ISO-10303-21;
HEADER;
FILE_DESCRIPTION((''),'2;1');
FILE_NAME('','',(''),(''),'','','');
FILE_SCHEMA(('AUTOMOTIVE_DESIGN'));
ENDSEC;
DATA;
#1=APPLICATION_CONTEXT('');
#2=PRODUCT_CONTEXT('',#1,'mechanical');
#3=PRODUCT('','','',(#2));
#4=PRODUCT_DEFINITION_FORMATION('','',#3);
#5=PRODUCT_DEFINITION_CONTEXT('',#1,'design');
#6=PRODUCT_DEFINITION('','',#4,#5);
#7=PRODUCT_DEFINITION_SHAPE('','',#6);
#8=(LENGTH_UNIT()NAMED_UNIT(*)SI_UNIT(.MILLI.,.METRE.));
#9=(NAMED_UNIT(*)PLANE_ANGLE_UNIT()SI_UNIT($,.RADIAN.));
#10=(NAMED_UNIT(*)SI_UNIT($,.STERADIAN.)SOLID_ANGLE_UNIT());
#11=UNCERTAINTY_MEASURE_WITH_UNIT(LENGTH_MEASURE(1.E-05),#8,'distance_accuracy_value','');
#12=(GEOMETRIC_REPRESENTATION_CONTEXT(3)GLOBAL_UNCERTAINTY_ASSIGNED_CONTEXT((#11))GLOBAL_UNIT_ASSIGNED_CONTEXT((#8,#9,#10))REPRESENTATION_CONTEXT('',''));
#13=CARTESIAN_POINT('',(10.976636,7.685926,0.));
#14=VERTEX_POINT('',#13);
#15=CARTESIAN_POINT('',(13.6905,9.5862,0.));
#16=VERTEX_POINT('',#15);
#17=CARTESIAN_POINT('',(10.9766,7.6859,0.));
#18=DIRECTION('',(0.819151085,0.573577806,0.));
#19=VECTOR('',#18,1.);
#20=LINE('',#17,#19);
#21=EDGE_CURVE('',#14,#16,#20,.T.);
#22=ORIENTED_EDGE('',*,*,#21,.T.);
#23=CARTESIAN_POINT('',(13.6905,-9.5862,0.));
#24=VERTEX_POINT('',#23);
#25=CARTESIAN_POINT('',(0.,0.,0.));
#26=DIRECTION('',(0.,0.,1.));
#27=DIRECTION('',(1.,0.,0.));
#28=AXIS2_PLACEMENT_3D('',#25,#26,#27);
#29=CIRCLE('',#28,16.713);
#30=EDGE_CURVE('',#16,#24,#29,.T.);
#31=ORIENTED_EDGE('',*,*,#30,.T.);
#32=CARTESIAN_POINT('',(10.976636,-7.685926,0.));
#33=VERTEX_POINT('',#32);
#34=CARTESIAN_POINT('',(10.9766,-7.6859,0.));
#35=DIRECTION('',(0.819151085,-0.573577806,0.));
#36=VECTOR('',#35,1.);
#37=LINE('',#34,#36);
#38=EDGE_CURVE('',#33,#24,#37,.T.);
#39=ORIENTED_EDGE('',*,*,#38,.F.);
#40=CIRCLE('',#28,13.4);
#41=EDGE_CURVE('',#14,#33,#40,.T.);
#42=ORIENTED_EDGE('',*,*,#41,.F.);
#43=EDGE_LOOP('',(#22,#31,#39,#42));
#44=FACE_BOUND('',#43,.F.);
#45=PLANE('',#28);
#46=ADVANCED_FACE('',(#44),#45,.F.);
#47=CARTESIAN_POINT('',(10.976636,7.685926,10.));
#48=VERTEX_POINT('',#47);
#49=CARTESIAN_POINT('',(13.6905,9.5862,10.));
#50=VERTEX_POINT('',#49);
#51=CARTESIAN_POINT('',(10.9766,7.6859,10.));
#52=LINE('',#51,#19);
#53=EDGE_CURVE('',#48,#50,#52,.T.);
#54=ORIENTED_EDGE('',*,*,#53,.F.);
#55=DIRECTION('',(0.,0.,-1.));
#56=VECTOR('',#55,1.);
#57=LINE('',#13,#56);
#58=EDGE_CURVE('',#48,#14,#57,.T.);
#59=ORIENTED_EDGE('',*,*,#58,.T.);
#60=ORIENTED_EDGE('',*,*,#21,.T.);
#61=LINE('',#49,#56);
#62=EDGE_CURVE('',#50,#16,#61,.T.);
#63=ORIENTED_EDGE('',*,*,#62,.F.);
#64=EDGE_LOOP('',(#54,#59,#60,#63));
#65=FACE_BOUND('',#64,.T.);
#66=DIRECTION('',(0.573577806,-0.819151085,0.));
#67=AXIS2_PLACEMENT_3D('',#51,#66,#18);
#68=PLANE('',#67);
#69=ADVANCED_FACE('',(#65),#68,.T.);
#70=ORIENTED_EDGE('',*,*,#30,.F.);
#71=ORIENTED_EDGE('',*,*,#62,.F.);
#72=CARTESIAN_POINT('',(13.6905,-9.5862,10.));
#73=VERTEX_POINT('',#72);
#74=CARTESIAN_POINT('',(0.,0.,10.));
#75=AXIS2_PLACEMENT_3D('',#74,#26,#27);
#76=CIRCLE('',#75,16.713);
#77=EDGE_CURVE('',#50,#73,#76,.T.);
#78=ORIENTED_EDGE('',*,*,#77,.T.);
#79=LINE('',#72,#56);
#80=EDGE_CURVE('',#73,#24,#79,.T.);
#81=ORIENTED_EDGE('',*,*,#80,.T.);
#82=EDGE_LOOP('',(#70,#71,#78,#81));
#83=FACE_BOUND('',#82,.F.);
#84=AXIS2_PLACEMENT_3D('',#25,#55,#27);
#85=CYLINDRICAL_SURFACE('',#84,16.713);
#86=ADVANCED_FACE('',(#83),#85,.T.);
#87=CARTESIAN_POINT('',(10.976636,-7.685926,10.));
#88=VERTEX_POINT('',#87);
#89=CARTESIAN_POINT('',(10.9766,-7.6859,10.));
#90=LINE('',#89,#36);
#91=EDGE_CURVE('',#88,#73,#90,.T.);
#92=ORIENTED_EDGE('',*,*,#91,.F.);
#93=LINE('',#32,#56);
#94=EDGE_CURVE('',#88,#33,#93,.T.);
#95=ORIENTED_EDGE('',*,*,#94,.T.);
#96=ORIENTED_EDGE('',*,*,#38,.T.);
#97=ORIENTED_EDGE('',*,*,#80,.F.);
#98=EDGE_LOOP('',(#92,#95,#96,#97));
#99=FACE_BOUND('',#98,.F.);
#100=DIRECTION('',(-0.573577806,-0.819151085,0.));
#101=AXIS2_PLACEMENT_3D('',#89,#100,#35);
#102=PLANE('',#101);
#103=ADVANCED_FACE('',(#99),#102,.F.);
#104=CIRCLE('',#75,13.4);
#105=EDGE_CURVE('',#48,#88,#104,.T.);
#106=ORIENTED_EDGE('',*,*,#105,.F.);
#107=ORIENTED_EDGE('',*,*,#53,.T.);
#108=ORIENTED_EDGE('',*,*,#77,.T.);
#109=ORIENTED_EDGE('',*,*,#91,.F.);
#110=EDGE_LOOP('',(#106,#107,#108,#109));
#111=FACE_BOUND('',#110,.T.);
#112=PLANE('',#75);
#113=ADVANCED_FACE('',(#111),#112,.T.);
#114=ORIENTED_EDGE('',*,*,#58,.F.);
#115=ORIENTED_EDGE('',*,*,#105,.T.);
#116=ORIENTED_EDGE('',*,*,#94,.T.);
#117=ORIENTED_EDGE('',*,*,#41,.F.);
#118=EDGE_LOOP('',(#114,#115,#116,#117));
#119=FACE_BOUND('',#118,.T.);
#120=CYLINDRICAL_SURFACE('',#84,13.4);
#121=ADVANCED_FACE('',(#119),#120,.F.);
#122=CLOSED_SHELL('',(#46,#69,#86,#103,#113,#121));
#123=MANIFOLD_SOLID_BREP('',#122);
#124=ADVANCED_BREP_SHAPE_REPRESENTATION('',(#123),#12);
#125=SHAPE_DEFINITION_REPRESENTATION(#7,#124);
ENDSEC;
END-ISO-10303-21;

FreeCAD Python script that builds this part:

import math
import FreeCAD as App
import Part
import Sketcher
from FreeCAD import Vector
Q = App.Units.Quantity

doc = App.newDocument("Part")
body = doc.addObject("PartDesign::Body", "Body")

sketch1 = body.newObject("Sketcher::SketchObject", "Sketch")
sketch1.AttachmentSupport = (doc.getObject("XY_Plane"), [""])
sketch1.MapMode = "FlatFace"
sketch1.addGeometry(Part.Circle(Vector(0, 0, 0), Vector(0, 0, 1), 17), False)
sketch1.addGeometry(Part.Circle(Vector(0, 0, 0), Vector(0, 0, 1), 13), False)
sketch1.addConstraint(Sketcher.Constraint("Coincident", 0, 3, -1, 1))
sketch1.addConstraint(Sketcher.Constraint("Coincident", 1, 3, -1, 1))
sketch1.addConstraint(Sketcher.Constraint("Diameter", 1, Q("26.8 mm")))
sketch1.addConstraint(Sketcher.Constraint("Diameter", 0, Q("33.426 mm")))
pad1 = body.newObject("PartDesign::Pad", "Pad")
pad1.Profile = sketch1
pad1.Length = 10

sketch2 = body.newObject("Sketcher::SketchObject", "Sketch001")
sketch2.AttachmentSupport = (doc.getObject("XY_Plane"), [""])
sketch2.MapMode = "FlatFace"
sketch2.AttachmentOffset = App.Placement(Vector(0, 0, 10), App.Rotation())
sketch2.addGeometry(Part.LineSegment(Vector(13.7, 9.6, 0), Vector(11, 7.7, 0)), False)
sketch2.addGeometry(Part.ArcOfCircle(Part.Circle(Vector(0, 0, 0), Vector(0, 0, 1), 13.4), math.radians(-35), math.radians(35)), False)
sketch2.addGeometry(Part.LineSegment(Vector(11, -7.7, 0), Vector(13.7, -9.6, 0)), False)
sketch2.addGeometry(Part.ArcOfCircle(Part.Circle(Vector(0, 0, 0), Vector(0, 0, 1), 16.7), math.radians(-35), math.radians(35)), False)
sketch2.addConstraint(Sketcher.Constraint("Coincident", 0, 2, 1, 2))
sketch2.addConstraint(Sketcher.Constraint("Coincident", 1, 1, 2, 1))
sketch2.addConstraint(Sketcher.Constraint("Coincident", 2, 2, 3, 1))
sketch2.addConstraint(Sketcher.Constraint("Coincident", 3, 2, 0, 1))
sketch2.addConstraint(Sketcher.Constraint("Coincident", 1, 3, -1, 1))
sketch2.addConstraint(Sketcher.Constraint("Coincident", 3, 3, -1, 1))
sketch2.addConstraint(Sketcher.Constraint("Vertical", 0, 2, 1, 1))
sketch2.addConstraint(Sketcher.Constraint("Vertical", 2, 2, 3, 2))
sketch2.addConstraint(Sketcher.Constraint("Angle", 2, Q("-35 deg")))
sketch2.addConstraint(Sketcher.Constraint("Radius", 1, Q("13.4 mm")))
sketch2.addConstraint(Sketcher.Constraint("Radius", 3, Q("16.713 mm")))
sketch2.addConstraint(Sketcher.Constraint("DistanceY", -1, 1, 0, 2, Q("7.686 mm")))
pocket1 = body.newObject("PartDesign::Pocket", "Pocket")
pocket1.Profile = sketch2
pocket1.Length = 10

doc.recompute()
